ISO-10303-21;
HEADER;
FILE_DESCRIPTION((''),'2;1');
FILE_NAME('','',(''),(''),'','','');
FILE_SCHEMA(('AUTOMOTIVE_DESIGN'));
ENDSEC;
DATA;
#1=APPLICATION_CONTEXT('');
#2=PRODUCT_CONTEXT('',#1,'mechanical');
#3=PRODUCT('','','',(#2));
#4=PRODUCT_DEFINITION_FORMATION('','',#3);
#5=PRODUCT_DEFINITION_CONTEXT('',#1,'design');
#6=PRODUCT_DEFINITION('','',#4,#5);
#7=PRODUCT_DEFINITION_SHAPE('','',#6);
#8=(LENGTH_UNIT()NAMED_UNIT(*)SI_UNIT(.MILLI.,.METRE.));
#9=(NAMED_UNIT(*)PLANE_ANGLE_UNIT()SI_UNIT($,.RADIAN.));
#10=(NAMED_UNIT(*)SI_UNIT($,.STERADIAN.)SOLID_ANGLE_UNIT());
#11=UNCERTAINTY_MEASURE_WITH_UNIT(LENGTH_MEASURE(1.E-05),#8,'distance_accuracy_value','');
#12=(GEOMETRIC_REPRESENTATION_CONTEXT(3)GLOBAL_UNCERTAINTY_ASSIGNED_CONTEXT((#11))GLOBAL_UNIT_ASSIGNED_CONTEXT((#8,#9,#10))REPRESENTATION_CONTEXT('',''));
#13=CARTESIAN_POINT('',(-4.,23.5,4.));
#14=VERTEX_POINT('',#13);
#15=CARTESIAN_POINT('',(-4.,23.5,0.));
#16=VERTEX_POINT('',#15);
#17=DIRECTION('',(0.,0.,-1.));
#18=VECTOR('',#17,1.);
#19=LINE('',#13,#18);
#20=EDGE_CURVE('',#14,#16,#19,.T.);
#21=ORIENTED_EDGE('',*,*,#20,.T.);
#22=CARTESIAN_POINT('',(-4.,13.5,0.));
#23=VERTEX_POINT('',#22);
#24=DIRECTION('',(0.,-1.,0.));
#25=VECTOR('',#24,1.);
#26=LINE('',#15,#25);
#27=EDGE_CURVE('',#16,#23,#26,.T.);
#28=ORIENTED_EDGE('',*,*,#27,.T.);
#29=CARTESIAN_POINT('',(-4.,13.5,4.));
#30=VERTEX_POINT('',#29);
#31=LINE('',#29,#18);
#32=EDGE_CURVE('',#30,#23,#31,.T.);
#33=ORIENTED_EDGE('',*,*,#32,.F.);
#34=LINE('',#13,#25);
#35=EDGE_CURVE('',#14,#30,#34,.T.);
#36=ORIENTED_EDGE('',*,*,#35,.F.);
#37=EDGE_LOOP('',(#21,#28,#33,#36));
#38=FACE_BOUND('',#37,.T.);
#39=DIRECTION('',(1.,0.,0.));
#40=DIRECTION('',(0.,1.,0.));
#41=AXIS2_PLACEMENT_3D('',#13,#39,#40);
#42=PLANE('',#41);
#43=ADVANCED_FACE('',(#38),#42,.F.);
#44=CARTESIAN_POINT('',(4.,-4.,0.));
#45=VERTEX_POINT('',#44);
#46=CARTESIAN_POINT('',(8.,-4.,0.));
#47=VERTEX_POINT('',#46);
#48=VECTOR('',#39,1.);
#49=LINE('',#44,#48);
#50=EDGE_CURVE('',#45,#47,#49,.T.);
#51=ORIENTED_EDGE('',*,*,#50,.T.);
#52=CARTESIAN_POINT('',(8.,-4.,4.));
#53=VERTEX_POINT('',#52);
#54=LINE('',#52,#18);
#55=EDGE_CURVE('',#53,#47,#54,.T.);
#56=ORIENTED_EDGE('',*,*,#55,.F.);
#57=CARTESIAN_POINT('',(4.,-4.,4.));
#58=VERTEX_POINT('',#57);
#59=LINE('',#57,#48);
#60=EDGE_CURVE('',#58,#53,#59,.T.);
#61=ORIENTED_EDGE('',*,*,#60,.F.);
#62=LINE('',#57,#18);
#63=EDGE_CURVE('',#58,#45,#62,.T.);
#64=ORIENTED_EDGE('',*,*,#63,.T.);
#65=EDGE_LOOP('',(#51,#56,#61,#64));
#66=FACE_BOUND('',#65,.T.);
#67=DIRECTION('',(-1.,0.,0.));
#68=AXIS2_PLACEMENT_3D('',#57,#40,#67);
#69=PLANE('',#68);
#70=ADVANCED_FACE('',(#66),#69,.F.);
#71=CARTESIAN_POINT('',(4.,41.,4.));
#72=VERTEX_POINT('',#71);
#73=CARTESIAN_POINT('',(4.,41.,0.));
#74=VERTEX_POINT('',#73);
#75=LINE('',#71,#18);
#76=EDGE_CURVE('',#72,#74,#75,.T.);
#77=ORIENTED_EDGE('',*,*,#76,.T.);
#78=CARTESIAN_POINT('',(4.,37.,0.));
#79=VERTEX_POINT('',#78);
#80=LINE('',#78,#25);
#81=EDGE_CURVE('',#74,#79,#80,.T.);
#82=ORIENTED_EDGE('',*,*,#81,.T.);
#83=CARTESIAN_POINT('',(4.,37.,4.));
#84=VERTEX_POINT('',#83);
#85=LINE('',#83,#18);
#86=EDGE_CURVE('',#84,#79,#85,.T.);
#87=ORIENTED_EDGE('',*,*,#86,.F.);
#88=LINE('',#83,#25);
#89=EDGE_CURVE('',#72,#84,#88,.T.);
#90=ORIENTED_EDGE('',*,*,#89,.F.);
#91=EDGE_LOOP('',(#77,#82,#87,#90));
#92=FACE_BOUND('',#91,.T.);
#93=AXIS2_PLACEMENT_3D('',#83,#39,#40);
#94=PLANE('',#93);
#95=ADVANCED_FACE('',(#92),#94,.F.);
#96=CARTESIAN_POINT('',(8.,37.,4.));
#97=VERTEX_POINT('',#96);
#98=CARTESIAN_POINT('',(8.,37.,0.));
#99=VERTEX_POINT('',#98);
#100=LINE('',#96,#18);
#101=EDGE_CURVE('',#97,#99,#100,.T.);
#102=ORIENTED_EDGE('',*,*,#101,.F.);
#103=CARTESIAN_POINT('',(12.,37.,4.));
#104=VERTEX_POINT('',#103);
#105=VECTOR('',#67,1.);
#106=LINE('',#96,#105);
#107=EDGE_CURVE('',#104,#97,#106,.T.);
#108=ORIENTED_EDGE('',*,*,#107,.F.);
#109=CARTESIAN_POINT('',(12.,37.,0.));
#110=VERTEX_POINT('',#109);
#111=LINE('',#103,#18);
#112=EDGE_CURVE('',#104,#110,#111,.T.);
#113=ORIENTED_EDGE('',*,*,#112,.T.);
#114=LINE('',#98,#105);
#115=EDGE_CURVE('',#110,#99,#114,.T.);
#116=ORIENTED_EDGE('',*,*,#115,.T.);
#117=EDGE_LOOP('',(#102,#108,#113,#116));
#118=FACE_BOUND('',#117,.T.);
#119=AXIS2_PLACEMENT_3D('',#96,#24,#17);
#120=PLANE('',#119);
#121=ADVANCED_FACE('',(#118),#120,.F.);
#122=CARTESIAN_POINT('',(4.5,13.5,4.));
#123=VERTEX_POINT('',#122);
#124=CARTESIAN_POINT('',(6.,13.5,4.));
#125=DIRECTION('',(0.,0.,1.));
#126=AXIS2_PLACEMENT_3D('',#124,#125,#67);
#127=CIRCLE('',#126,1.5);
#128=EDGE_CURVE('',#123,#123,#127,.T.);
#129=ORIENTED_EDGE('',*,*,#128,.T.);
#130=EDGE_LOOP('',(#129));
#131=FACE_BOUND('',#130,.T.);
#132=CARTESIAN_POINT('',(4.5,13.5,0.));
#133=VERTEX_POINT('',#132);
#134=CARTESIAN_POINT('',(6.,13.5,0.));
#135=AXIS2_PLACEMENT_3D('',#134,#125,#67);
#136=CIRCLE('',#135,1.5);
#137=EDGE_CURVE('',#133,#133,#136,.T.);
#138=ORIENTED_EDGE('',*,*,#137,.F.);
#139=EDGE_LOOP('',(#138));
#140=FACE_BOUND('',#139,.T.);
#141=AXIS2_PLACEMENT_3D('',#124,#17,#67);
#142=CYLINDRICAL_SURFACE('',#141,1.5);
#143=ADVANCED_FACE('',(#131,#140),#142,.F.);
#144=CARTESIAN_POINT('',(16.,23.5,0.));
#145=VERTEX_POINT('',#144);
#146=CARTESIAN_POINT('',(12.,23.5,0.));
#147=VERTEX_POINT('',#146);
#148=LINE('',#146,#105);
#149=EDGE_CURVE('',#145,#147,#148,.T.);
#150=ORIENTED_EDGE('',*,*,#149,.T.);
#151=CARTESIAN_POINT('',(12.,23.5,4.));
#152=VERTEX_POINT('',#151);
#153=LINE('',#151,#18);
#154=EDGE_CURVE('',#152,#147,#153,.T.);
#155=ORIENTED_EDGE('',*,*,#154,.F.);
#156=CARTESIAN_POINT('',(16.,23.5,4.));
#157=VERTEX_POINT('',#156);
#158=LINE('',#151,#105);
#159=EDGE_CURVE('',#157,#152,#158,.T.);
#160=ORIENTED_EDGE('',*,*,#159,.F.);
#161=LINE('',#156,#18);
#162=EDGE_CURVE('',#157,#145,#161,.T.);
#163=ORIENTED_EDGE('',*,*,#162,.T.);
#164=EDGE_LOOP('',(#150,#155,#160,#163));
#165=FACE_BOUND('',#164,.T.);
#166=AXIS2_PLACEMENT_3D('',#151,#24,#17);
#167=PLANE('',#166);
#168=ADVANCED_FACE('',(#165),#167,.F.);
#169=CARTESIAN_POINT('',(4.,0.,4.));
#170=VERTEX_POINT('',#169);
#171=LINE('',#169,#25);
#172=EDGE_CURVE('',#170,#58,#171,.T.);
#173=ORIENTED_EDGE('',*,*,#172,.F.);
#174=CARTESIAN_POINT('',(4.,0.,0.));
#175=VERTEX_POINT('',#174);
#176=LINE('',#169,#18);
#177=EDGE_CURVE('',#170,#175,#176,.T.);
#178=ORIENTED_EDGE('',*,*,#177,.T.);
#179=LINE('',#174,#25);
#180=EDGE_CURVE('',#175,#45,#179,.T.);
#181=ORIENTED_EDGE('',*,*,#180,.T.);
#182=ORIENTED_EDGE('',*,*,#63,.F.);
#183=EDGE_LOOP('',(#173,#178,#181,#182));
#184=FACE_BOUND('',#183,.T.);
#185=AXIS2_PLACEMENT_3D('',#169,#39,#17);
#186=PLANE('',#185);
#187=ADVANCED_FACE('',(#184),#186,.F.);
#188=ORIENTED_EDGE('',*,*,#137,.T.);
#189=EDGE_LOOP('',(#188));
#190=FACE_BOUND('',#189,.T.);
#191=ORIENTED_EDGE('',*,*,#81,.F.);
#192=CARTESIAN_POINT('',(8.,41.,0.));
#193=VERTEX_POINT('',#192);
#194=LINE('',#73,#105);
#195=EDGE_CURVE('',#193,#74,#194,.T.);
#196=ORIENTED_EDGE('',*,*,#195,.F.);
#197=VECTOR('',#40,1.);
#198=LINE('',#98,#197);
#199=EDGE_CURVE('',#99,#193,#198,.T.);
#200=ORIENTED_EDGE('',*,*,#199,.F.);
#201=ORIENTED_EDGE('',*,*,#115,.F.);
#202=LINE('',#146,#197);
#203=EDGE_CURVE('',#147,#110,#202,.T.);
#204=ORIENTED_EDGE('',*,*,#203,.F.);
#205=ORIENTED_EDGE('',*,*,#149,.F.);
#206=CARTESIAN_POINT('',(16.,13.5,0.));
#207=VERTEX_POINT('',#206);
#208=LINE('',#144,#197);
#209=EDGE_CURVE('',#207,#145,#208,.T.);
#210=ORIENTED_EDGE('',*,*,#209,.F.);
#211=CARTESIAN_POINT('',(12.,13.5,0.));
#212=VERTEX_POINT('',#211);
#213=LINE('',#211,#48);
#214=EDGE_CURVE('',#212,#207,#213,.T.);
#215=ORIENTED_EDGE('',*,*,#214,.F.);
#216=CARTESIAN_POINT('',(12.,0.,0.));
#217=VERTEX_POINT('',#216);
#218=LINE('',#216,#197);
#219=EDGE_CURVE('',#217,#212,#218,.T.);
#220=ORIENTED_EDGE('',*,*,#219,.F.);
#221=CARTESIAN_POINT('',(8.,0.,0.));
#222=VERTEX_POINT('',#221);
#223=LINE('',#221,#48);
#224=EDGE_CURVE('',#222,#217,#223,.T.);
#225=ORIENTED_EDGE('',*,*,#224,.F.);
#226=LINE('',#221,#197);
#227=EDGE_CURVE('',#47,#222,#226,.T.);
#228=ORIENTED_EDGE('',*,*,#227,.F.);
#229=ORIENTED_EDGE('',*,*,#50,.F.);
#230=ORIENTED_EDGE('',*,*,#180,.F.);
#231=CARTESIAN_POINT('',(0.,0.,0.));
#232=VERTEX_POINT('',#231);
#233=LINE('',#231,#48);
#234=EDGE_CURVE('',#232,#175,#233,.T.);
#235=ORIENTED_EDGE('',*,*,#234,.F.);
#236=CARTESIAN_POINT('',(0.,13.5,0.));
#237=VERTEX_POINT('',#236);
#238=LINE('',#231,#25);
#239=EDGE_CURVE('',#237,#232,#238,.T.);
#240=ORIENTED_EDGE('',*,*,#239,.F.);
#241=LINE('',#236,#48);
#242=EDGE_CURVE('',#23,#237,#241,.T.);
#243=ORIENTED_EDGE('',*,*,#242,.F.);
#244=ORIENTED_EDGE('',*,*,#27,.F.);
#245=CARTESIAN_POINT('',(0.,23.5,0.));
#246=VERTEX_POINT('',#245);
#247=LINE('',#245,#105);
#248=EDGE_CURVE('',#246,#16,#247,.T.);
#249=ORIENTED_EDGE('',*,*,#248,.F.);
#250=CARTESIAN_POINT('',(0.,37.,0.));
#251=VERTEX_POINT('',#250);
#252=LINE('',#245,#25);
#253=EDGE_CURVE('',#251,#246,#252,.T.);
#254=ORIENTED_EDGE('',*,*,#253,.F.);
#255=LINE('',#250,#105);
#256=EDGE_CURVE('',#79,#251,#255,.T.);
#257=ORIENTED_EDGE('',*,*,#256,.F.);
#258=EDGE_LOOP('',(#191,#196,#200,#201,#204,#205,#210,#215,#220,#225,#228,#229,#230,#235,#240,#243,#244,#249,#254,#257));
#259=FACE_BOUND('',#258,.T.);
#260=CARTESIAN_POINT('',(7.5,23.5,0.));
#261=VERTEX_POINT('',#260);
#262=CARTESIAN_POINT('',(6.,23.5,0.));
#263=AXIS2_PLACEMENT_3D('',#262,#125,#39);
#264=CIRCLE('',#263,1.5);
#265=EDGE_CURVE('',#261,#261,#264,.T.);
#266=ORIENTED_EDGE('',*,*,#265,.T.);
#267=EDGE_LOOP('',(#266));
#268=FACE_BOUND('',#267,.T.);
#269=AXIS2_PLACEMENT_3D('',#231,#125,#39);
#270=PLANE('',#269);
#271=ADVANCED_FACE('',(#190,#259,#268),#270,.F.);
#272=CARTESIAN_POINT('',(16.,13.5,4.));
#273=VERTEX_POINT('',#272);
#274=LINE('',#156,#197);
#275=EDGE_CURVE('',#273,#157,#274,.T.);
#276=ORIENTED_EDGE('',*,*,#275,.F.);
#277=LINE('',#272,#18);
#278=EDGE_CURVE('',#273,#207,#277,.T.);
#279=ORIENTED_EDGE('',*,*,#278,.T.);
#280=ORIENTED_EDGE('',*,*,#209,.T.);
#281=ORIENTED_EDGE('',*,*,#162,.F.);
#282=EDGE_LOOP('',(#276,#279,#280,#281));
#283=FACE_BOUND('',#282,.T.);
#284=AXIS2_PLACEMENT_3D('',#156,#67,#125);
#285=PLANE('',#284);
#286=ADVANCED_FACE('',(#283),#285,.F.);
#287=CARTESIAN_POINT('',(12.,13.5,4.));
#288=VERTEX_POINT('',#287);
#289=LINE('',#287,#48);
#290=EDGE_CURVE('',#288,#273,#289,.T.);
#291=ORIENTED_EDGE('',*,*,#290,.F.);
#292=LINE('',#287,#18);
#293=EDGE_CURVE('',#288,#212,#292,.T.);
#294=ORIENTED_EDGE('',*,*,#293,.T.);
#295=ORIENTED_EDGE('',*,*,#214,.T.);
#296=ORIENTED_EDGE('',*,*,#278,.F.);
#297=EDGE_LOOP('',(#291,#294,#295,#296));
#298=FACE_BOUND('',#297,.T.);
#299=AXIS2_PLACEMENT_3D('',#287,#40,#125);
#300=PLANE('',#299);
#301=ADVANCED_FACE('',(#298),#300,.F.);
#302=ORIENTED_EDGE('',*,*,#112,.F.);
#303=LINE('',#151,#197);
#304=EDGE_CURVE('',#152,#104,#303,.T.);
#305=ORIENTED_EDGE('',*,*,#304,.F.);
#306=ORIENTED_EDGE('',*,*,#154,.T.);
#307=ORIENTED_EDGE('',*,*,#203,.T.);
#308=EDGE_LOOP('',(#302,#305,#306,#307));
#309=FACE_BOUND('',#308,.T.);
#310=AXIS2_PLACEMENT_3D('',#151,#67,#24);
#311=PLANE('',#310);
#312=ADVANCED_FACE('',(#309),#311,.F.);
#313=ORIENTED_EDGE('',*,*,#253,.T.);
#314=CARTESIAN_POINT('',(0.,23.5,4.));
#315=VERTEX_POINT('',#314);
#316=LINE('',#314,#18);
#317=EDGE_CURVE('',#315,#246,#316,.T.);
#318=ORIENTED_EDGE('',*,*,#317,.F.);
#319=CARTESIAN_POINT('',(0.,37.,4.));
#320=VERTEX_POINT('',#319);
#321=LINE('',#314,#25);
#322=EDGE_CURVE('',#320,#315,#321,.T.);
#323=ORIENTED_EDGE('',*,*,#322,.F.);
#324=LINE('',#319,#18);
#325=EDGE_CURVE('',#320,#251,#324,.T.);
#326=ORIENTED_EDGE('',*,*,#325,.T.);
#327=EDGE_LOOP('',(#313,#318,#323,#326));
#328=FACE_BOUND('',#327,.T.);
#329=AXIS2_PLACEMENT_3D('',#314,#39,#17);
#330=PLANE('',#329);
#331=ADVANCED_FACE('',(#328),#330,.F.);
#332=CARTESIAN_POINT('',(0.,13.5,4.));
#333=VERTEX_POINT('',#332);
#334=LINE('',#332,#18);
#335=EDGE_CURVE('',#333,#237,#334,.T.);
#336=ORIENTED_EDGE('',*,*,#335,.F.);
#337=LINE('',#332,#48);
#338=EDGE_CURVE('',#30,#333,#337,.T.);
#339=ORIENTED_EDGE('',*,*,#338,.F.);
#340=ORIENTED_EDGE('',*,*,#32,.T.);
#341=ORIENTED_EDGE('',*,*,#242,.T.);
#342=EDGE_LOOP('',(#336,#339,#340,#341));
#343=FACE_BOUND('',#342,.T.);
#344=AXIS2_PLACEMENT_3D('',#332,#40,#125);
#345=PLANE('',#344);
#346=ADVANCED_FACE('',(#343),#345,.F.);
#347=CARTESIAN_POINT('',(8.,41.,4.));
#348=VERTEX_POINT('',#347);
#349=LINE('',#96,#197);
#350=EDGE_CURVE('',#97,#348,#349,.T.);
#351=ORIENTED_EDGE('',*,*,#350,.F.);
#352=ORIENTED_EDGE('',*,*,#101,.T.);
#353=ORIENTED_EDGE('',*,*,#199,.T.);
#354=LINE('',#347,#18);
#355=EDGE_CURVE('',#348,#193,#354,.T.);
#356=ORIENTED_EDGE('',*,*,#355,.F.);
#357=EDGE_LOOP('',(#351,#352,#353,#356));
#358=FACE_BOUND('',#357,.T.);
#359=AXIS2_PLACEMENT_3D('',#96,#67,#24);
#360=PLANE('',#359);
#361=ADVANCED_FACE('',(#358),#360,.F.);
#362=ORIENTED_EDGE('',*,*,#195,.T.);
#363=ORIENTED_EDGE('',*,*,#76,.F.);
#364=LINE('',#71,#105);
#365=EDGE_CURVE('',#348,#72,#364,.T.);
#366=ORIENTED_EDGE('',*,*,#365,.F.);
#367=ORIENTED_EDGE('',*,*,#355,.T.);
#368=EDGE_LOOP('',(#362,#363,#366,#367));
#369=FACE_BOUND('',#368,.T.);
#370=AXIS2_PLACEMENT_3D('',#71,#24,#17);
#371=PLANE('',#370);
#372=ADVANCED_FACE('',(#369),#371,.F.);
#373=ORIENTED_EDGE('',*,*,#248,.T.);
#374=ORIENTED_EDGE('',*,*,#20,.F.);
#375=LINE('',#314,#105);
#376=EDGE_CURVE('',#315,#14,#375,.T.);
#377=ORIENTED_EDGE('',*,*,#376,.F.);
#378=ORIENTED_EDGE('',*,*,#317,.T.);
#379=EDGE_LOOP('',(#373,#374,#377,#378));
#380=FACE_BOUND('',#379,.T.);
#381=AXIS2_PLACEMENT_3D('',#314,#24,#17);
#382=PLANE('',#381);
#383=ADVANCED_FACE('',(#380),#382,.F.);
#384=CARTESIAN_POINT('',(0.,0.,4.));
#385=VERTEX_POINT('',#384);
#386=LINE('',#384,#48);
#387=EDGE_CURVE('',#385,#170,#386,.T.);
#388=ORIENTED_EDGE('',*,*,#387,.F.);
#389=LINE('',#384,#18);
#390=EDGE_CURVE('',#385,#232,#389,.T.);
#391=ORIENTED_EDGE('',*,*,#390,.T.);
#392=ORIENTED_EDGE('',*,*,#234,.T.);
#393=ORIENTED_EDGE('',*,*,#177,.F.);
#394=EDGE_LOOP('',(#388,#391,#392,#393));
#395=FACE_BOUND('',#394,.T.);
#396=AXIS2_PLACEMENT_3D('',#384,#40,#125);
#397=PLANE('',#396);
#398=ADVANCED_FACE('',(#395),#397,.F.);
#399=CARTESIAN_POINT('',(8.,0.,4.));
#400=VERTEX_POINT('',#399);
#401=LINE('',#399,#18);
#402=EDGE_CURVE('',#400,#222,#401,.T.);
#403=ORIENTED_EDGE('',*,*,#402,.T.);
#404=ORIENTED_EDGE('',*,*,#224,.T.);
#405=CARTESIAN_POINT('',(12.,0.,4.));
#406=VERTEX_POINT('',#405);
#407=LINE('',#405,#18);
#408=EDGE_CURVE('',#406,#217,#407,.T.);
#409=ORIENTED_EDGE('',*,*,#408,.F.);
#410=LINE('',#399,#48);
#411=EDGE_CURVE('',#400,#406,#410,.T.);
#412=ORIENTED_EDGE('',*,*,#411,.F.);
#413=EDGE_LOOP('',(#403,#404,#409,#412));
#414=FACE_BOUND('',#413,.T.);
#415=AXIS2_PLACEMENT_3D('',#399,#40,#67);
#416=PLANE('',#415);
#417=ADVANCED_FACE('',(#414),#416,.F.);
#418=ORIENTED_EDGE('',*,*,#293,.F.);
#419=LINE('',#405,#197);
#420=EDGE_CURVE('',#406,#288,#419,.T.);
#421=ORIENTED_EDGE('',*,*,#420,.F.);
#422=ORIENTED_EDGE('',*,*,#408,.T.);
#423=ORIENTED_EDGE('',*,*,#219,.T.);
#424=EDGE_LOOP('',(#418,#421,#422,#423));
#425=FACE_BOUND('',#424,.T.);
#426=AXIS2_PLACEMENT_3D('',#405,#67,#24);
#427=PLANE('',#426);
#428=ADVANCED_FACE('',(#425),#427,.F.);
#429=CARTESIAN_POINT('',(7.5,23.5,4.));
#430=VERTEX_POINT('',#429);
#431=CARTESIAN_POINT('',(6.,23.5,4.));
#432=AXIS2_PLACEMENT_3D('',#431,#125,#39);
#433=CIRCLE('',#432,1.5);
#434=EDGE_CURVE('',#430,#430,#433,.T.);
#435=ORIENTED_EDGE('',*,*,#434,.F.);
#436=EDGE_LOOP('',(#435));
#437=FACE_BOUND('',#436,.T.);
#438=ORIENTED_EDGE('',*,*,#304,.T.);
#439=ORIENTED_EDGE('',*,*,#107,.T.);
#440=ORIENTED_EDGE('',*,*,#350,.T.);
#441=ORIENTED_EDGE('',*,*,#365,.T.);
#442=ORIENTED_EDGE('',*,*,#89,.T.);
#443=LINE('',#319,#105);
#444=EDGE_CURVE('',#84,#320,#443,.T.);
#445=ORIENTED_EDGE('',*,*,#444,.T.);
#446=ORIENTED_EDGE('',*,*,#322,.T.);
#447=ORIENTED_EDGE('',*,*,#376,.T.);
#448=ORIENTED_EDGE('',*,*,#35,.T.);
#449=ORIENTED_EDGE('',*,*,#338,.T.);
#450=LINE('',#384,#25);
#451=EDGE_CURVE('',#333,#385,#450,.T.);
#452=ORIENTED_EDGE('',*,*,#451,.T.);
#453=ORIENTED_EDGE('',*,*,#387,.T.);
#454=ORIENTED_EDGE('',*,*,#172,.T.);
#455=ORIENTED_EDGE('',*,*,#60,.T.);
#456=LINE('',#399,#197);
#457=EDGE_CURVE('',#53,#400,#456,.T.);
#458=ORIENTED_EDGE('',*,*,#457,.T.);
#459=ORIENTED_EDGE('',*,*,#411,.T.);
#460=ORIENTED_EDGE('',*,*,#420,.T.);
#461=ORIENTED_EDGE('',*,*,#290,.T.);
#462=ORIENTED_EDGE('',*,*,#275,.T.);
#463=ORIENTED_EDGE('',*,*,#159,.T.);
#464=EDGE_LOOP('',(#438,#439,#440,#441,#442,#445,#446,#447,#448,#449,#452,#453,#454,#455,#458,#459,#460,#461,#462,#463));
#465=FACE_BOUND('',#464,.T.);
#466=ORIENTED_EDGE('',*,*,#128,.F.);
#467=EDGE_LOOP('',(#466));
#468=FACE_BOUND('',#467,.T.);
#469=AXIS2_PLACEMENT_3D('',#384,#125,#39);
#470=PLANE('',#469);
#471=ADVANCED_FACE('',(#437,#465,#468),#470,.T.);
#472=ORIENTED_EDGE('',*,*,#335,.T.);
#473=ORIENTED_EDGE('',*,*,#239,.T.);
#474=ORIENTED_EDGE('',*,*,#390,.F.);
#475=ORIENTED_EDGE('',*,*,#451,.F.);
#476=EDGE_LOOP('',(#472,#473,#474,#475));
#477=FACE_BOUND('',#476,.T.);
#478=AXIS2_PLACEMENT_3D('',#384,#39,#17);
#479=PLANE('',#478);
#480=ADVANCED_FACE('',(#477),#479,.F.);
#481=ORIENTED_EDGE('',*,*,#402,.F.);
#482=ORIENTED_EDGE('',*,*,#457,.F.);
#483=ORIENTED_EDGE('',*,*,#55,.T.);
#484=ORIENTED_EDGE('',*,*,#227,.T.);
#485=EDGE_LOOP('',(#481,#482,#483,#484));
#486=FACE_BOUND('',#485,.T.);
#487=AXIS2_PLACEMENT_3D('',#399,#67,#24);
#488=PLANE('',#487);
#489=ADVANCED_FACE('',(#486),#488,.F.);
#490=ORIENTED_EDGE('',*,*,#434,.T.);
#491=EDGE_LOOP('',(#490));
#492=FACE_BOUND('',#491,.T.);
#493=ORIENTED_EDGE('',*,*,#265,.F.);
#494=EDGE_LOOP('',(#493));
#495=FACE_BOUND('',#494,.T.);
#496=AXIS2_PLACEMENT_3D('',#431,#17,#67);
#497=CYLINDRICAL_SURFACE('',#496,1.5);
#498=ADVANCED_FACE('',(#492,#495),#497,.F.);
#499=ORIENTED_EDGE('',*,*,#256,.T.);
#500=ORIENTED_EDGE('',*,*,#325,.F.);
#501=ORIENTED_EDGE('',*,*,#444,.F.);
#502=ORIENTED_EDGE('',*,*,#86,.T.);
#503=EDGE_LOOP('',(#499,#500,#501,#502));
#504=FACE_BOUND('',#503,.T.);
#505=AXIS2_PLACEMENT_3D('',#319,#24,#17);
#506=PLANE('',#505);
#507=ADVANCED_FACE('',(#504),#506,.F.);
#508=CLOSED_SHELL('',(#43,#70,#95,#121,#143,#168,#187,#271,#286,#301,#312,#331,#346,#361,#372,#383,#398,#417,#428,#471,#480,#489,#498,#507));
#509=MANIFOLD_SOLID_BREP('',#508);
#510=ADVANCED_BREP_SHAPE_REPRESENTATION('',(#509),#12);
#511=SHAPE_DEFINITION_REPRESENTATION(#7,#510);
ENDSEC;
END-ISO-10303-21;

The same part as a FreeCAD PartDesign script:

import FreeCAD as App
import Part
import Sketcher

V = App.Vector


def add_polygon(sketch, points):
    """Adds a closed chain of lines whose ends are joined by coincident constraints."""
    first, n = sketch.GeometryCount, len(points)
    for a, b in zip(points, points[1:] + points[:1]):
        sketch.addGeometry(Part.LineSegment(App.Vector(*a, 0), App.Vector(*b, 0)), False)
    for i in range(n):
        sketch.addConstraint(Sketcher.Constraint("Coincident", first + i, 2, first + (i + 1) % n, 1))

doc = App.newDocument("Part")
body = doc.addObject("PartDesign::Body", "Body")

# Sketch on XY plane
sketch1 = body.newObject("Sketcher::SketchObject", "Sketch")
sketch1.AttachmentSupport = (doc.getObject("XY_Plane"), [""])
sketch1.MapMode = "FlatFace"
add_polygon(sketch1, [(0, 0), (4, 0), (4, -4), (8, -4), (8, 0), (12, 0), (12, 13.5), (16, 13.5), (16, 23.5), (12, 23.5), (12, 37), (8, 37), (8, 41), (4, 41), (4, 37), (0, 37), (0, 23.5), (-4, 23.5), (-4, 13.5), (0, 13.5)])  # lines 0-19
sketch1.addGeometry(Part.Circle(V(6, 13.5, 0), V(0, 0, 1), 1.5), False)  # 20
sketch1.addGeometry(Part.Circle(V(6, 23.5, 0), V(0, 0, 1), 1.5), False)  # 21
sketch1.addConstraint(Sketcher.Constraint("Horizontal", 0))
sketch1.addConstraint(Sketcher.Constraint("Vertical", 1))
sketch1.addConstraint(Sketcher.Constraint("Horizontal", 2))
sketch1.addConstraint(Sketcher.Constraint("Vertical", 3))
sketch1.addConstraint(Sketcher.Constraint("Horizontal", 4))
sketch1.addConstraint(Sketcher.Constraint("Vertical", 5))
sketch1.addConstraint(Sketcher.Constraint("Horizontal", 6))
sketch1.addConstraint(Sketcher.Constraint("Vertical", 7))
sketch1.addConstraint(Sketcher.Constraint("Horizontal", 8))
sketch1.addConstraint(Sketcher.Constraint("Vertical", 9))
sketch1.addConstraint(Sketcher.Constraint("Horizontal", 10))
sketch1.addConstraint(Sketcher.Constraint("Vertical", 11))
sketch1.addConstraint(Sketcher.Constraint("Horizontal", 12))
sketch1.addConstraint(Sketcher.Constraint("Vertical", 13))
sketch1.addConstraint(Sketcher.Constraint("Horizontal", 14))
sketch1.addConstraint(Sketcher.Constraint("Vertical", 15))
sketch1.addConstraint(Sketcher.Constraint("Horizontal", 16))
sketch1.addConstraint(Sketcher.Constraint("Vertical", 17))
sketch1.addConstraint(Sketcher.Constraint("Horizontal", 18))
sketch1.addConstraint(Sketcher.Constraint("Vertical", 19))
sketch1.addConstraint(Sketcher.Constraint("Coincident", 19, 2, -1, 1))
sketch1.addConstraint(Sketcher.Constraint("Equal", 20, 21))
sketch1.addConstraint(Sketcher.Constraint("PointOnObject", 3, 2, -1))
sketch1.addConstraint(Sketcher.Constraint("PointOnObject", 14, 2, -2))
sketch1.addConstraint(Sketcher.Constraint("Horizontal", 20, 3, 5, 2))
sketch1.addConstraint(Sketcher.Constraint("Horizontal", 21, 3, 7, 2))
sketch1.addConstraint(Sketcher.Constraint("Horizontal", 10, 2, 13, 2))
sketch1.addConstraint(Sketcher.Constraint("Horizontal", 8, 2, 15, 2))
sketch1.addConstraint(Sketcher.Constraint("Horizontal", 6, 2, 17, 2))
sketch1.addConstraint(Sketcher.Constraint("Vertical", 20, 3, 21, 3))
sketch1.addConstraint(Sketcher.Constraint("Vertical", 5, 2, 8, 2))
sketch1.addConstraint(Sketcher.Constraint("Vertical", 3, 2, 10, 2))
sketch1.addConstraint(Sketcher.Constraint("Vertical", 1, 2, 12, 2))
sketch1.addConstraint(Sketcher.Constraint("Equal", 0, 2))
sketch1.addConstraint(Sketcher.Constraint("Equal", 2, 4))
sketch1.addConstraint(Sketcher.Constraint("Equal", 4, 6))
sketch1.addConstraint(Sketcher.Constraint("Equal", 14, 16))
sketch1.addConstraint(Sketcher.Constraint("Equal", 18, 1))
sketch1.addConstraint(Sketcher.Constraint("Equal", 5, 9))
sketch1.addConstraint(Sketcher.Constraint("Equal", 3, 11))
sketch1.addConstraint(Sketcher.Constraint("Diameter", 20, 3.0))
sketch1.addConstraint(Sketcher.Constraint("DistanceX", 0, 1, 0, 2, 4.0))
sketch1.addConstraint(Sketcher.Constraint("DistanceY", 7, 1, 7, 2, 10.0))
sketch1.addConstraint(Sketcher.Constraint("DistanceY", 5, 1, 5, 2, 13.5))
sketch1.addConstraint(Sketcher.Constraint("DistanceX", -1, 1, 20, 3, 6.0))
pad1 = body.newObject("PartDesign::Pad", "Pad")
pad1.Profile = sketch1
pad1.Length = 4

doc.recompute()
